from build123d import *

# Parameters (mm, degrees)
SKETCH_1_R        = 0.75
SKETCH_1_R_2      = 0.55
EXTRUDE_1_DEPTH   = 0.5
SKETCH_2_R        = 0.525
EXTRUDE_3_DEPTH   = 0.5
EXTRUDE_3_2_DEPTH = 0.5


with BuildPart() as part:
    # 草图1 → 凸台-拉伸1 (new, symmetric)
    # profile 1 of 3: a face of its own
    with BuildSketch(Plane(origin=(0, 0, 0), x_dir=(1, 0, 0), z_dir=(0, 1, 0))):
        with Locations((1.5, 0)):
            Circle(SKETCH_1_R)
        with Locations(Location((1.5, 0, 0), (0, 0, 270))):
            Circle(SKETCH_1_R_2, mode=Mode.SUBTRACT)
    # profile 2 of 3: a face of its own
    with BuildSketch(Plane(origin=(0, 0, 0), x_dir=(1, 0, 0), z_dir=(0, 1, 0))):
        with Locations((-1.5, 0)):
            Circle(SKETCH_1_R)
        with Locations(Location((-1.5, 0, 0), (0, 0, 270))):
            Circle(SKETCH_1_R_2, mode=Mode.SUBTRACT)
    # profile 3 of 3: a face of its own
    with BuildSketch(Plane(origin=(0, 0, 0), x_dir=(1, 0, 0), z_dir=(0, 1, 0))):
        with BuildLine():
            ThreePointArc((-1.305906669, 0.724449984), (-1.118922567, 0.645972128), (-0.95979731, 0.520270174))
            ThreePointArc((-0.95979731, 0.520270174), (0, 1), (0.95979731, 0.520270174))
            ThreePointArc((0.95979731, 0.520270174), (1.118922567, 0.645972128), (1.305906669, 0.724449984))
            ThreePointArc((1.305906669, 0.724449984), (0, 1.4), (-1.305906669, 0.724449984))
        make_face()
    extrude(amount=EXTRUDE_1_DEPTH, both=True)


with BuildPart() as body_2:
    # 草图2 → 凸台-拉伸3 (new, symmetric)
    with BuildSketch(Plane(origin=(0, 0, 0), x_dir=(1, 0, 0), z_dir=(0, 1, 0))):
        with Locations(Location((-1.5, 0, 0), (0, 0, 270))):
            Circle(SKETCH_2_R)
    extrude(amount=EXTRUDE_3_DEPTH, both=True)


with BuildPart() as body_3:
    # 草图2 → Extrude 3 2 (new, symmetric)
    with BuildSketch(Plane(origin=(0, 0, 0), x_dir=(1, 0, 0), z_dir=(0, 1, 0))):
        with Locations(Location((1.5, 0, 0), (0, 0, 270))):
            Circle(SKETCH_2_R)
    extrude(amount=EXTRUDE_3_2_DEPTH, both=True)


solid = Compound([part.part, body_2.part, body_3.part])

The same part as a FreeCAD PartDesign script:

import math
import FreeCAD as App
import Part
import Sketcher
Q = App.Units.Quantity

doc = App.newDocument("Part")
body = doc.addObject("PartDesign::Body", "Body")

# Sketch on XZ plane
sketch1 = body.newObject("Sketcher::SketchObject", "Sketch")
sketch1.AttachmentSupport = (doc.getObject("XZ_Plane"), [""])
sketch1.MapMode = "FlatFace"
sketch1.addGeometry(Part.ArcOfCircle(Part.Circle(App.Vector(0, 0.2, 0), App.Vector(0, 0, 1), 1.6), math.radians(-144.705362), math.radians(-35.294638)), False)
sketch1.addGeometry(Part.ArcOfCircle(Part.Circle(App.Vector(-1.5, 0, 0), App.Vector(0, 0, 1), 0.75), math.radians(-43.923202), math.radians(284.998343)), False)
sketch1.addGeometry(Part.ArcOfCircle(Part.Circle(App.Vector(0, 0.2, 0), App.Vector(0, 0, 1), 1.2), math.radians(-143.113976), math.radians(-36.886024)), False)
sketch1.addGeometry(Part.ArcOfCircle(Part.Circle(App.Vector(1.5, 0, 0), App.Vector(0, 0, 1), 0.75), math.radians(-104.998343), math.radians(223.923202)), False)
sketch1.addGeometry(Part.Circle(App.Vector(1.5, 0, 0), App.Vector(0, 0, 1), 0.55), False)
sketch1.addGeometry(Part.Circle(App.Vector(-1.5, 0, 0), App.Vector(0, 0, 1), 0.55), False)
sketch1.addConstraint(Sketcher.Constraint("Coincident", 0, 1, 1, 2))
sketch1.addConstraint(Sketcher.Constraint("Coincident", 1, 1, 2, 1))
sketch1.addConstraint(Sketcher.Constraint("Coincident", 2, 2, 3, 2))
sketch1.addConstraint(Sketcher.Constraint("Coincident", 3, 1, 0, 2))
sketch1.addConstraint(Sketcher.Constraint("Coincident", 2, 3, 0, 3))
sketch1.addConstraint(Sketcher.Constraint("Coincident", 4, 3, 3, 3))
sketch1.addConstraint(Sketcher.Constraint("Coincident", 5, 3, 1, 3))
sketch1.addConstraint(Sketcher.Constraint("Equal", 1, 3))
sketch1.addConstraint(Sketcher.Constraint("Equal", 4, 5))
sketch1.addConstraint(Sketcher.Constraint("Symmetric", 1, 3, 3, 3, -1, 1))
sketch1.addConstraint(Sketcher.Constraint("Symmetric", 1, 1, 2, 2, -2))
sketch1.addConstraint(Sketcher.Constraint("Diameter", 4, Q("1.1 mm")))
sketch1.addConstraint(Sketcher.Constraint("Radius", 0, Q("1.6 mm")))
sketch1.addConstraint(Sketcher.Constraint("Radius", 2, Q("1.2 mm")))
sketch1.addConstraint(Sketcher.Constraint("Radius", 1, Q("0.75 mm")))
sketch1.addConstraint(Sketcher.Constraint("DistanceX", 1, 3, 3, 3, Q("3 mm")))
sketch1.addConstraint(Sketcher.Constraint("DistanceY", -1, 1, 0, 3, Q("0.2 mm")))
pad1 = body.newObject("PartDesign::Pad", "Pad")
pad1.Profile = sketch1
pad1.Length = 1
pad1.Midplane = True
body2 = doc.addObject("PartDesign::Body", "Body001")

# Sketch on XZ plane
sketch2 = body2.newObject("Sketcher::SketchObject", "Sketch001")
sketch2.AttachmentSupport = (doc.getObject("XZ_Plane001"), [""])
sketch2.MapMode = "FlatFace"
sketch2.addGeometry(Part.Circle(App.Vector(-1.5, 0, 0), App.Vector(0, 0, 1), 0.525), False)
sketch2.addConstraint(Sketcher.Constraint("PointOnObject", 0, 3, -1))
sketch2.addConstraint(Sketcher.Constraint("Diameter", 0, Q("1.05 mm")))
sketch2.addConstraint(Sketcher.Constraint("DistanceX", 0, 3, -1, 1, Q("1.5 mm")))
pad2 = body2.newObject("PartDesign::Pad", "Pad001")
pad2.Profile = sketch2
pad2.Length = 1
pad2.Midplane = True
body3 = doc.addObject("PartDesign::Body", "Body002")

# Sketch on XZ plane
sketch3 = body3.newObject("Sketcher::SketchObject", "Sketch002")
sketch3.AttachmentSupport = (doc.getObject("XZ_Plane002"), [""])
sketch3.MapMode = "FlatFace"
sketch3.addGeometry(Part.Circle(App.Vector(1.5, 0, 0), App.Vector(0, 0, 1), 0.525), False)
sketch3.addConstraint(Sketcher.Constraint("PointOnObject", 0, 3, -1))
sketch3.addConstraint(Sketcher.Constraint("Diameter", 0, Q("1.05 mm")))
sketch3.addConstraint(Sketcher.Constraint("DistanceX", -1, 1, 0, 3, Q("1.5 mm")))
pad3 = body3.newObject("PartDesign::Pad", "Pad002")
pad3.Profile = sketch3
pad3.Length = 1
pad3.Midplane = True

doc.recompute()
